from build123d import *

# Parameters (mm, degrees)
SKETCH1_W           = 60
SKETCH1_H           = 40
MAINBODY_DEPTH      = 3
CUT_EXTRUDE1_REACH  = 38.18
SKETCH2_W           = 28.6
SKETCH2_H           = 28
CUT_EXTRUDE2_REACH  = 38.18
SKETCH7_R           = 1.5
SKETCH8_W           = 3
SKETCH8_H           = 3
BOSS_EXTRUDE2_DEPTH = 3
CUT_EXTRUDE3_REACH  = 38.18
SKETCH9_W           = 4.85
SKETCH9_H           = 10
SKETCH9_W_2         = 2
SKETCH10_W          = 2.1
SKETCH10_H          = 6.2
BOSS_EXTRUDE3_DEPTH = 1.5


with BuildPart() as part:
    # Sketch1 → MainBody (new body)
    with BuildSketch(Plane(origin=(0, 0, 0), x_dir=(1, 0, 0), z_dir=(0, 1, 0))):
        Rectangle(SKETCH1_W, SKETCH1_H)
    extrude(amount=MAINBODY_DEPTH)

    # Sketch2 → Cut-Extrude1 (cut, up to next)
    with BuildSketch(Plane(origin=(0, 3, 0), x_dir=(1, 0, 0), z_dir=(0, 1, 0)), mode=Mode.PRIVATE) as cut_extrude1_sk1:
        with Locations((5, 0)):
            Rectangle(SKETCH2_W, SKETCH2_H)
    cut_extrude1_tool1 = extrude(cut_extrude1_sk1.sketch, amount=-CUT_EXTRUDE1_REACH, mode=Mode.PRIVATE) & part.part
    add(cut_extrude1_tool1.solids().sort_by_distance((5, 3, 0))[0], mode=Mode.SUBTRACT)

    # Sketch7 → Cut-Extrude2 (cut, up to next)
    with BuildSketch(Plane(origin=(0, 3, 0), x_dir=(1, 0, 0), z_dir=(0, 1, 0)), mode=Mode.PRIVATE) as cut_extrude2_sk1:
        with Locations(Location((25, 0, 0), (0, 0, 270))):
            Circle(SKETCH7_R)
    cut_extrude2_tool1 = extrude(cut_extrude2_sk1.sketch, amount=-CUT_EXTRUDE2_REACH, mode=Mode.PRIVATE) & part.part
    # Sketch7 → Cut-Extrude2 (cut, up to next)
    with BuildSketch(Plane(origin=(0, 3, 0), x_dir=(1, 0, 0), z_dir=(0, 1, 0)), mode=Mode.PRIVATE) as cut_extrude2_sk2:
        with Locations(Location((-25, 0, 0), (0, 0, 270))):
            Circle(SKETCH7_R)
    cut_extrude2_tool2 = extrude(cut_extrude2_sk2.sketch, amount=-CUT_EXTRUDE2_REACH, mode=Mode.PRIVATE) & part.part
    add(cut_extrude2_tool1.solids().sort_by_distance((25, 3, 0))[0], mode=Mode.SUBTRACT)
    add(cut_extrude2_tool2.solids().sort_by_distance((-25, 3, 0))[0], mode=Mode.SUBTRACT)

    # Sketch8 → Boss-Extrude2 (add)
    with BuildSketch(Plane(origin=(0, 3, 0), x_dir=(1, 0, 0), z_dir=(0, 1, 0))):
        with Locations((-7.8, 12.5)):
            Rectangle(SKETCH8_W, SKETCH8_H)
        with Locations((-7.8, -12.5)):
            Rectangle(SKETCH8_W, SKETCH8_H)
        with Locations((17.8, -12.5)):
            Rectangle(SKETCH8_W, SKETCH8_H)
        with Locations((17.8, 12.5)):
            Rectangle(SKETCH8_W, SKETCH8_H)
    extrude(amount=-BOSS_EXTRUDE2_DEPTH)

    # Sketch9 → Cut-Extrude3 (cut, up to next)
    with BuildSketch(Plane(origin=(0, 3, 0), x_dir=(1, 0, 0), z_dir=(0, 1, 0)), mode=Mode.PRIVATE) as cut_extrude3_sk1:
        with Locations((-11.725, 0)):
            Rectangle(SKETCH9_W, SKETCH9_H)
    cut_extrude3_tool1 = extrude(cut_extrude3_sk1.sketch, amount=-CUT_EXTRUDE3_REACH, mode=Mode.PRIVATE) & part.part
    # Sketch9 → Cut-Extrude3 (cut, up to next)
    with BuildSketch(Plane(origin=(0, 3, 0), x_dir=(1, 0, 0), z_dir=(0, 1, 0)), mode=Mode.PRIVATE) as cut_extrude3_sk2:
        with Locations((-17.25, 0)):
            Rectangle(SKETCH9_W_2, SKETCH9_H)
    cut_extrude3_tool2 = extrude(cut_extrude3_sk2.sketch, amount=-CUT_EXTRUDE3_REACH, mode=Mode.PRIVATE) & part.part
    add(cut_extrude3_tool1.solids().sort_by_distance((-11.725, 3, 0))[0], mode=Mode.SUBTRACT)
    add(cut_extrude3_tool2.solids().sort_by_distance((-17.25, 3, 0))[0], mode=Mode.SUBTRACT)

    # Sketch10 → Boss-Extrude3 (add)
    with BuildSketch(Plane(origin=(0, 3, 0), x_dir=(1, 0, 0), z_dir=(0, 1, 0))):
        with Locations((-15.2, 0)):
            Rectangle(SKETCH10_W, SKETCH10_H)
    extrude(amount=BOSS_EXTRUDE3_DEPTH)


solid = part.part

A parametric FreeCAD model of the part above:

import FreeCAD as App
import Part
import Sketcher

V = App.Vector


def add_polygon(sketch, points):
    """Adds a closed chain of lines whose ends are joined by coincident constraints."""
    first, n = sketch.GeometryCount, len(points)
    for a, b in zip(points, points[1:] + points[:1]):
        sketch.addGeometry(Part.LineSegment(App.Vector(*a, 0), App.Vector(*b, 0)), False)
    for i in range(n):
        sketch.addConstraint(Sketcher.Constraint("Coincident", first + i, 2, first + (i + 1) % n, 1))

doc = App.newDocument("Part")
body = doc.addObject("PartDesign::Body", "Body")

# Sketch on XZ plane
sketch1 = body.newObject("Sketcher::SketchObject", "Sketch")
sketch1.AttachmentSupport = (doc.getObject("XZ_Plane"), [""])
sketch1.MapMode = "FlatFace"
add_polygon(sketch1, [(-30, -20), (-30, 20), (30, 20), (30, -20)])  # lines 0-3
sketch1.addConstraint(Sketcher.Constraint("Vertical", 0))
sketch1.addConstraint(Sketcher.Constraint("Horizontal", 1))
sketch1.addConstraint(Sketcher.Constraint("Vertical", 2))
sketch1.addConstraint(Sketcher.Constraint("Horizontal", 3))
sketch1.addConstraint(Sketcher.Constraint("Symmetric", 0, 2, 2, 2, -1, 1))
sketch1.addConstraint(Sketcher.Constraint("DistanceX", 1, 1, 1, 2, 60.0))
sketch1.addConstraint(Sketcher.Constraint("DistanceY", 0, 1, 0, 2, 40.0))
pad1 = body.newObject("PartDesign::Pad", "Pad")
pad1.Profile = sketch1
pad1.Length = 3
pad1.Reversed = True

# Sketch on XZ plane
sketch2 = body.newObject("Sketcher::SketchObject", "Sketch001")
sketch2.AttachmentSupport = (doc.getObject("XZ_Plane"), [""])
sketch2.MapMode = "FlatFace"
sketch2.AttachmentOffset = App.Placement(V(0, 0, -3), App.Rotation())
add_polygon(sketch2, [(-9, -14), (-9, 14), (19, 14), (19, -14)])  # lines 0-3
sketch2.addConstraint(Sketcher.Constraint("Vertical", 0))
sketch2.addConstraint(Sketcher.Constraint("Horizontal", 1))
sketch2.addConstraint(Sketcher.Constraint("Vertical", 2))
sketch2.addConstraint(Sketcher.Constraint("Horizontal", 3))
sketch2.addConstraint(Sketcher.Constraint("DistanceY", 0, 1, 0, 2, 28.0))
sketch2.addConstraint(Sketcher.Constraint("DistanceX", 1, 1, 1, 2, 28.6))
sketch2.addConstraint(Sketcher.Constraint("DistanceY", -1, 1, 0, 2, 14.0))
sketch2.addConstraint(Sketcher.Constraint("DistanceX", 0, 2, -1, 1, 9.3))
pocket1 = body.newObject("PartDesign::Pocket", "Pocket")
pocket1.Profile = sketch2
pocket1.Type = "UpToFirst"
pocket1.Reversed = True

# Sketch on XZ plane
sketch3 = body.newObject("Sketcher::SketchObject", "Sketch002")
sketch3.AttachmentSupport = (doc.getObject("XZ_Plane"), [""])
sketch3.MapMode = "FlatFace"
sketch3.AttachmentOffset = App.Placement(V(0, 0, -3), App.Rotation())
sketch3.addGeometry(Part.Circle(V(25, 0, 0), V(0, 0, 1), 1.5), False)
sketch3.addConstraint(Sketcher.Constraint("PointOnObject", 0, 3, -1))
sketch3.addConstraint(Sketcher.Constraint("Diameter", 0, 3.0))
sketch3.addConstraint(Sketcher.Constraint("DistanceX", -1, 1, 0, 3, 25.0))
pocket2 = body.newObject("PartDesign::Pocket", "Pocket001")
pocket2.Profile = sketch3
pocket2.Type = "UpToFirst"
pocket2.Reversed = True

# Sketch on XZ plane
sketch4 = body.newObject("Sketcher::SketchObject", "Sketch003")
sketch4.AttachmentSupport = (doc.getObject("XZ_Plane"), [""])
sketch4.MapMode = "FlatFace"
sketch4.AttachmentOffset = App.Placement(V(0, 0, -3), App.Rotation())
sketch4.addGeometry(Part.Circle(V(-25, 0, 0), V(0, 0, 1), 1.5), False)
sketch4.addConstraint(Sketcher.Constraint("PointOnObject", 0, 3, -1))
sketch4.addConstraint(Sketcher.Constraint("Diameter", 0, 3.0))
sketch4.addConstraint(Sketcher.Constraint("DistanceX", 0, 3, -1, 1, 25.0))
pocket3 = body.newObject("PartDesign::Pocket", "Pocket002")
pocket3.Profile = sketch4
pocket3.Type = "UpToFirst"
pocket3.Reversed = True

# Sketch on XZ plane
sketch5 = body.newObject("Sketcher::SketchObject", "Sketch004")
sketch5.AttachmentSupport = (doc.getObject("XZ_Plane"), [""])
sketch5.MapMode = "FlatFace"
sketch5.AttachmentOffset = App.Placement(V(0, 0, -3), App.Rotation())
add_polygon(sketch5, [(-9.3, -14), (-9.3, -11), (-6.3, -11), (-6.3, -14)])  # lines 0-3
add_polygon(sketch5, [(-9.3, 11), (-9.3, 14), (-6.3, 14), (-6.3, 11)])  # lines 4-7
add_polygon(sketch5, [(16.3, 11), (16.3, 14), (19.3, 14), (19.3, 11)])  # lines 8-11
add_polygon(sketch5, [(16.3, -14), (16.3, -11), (19.3, -11), (19.3, -14)])  # lines 12-15
sketch5.addConstraint(Sketcher.Constraint("Vertical", 0))
sketch5.addConstraint(Sketcher.Constraint("Horizontal", 1))
sketch5.addConstraint(Sketcher.Constraint("Vertical", 2))
sketch5.addConstraint(Sketcher.Constraint("Horizontal", 3))
sketch5.addConstraint(Sketcher.Constraint("Vertical", 4))
sketch5.addConstraint(Sketcher.Constraint("Horizontal", 5))
sketch5.addConstraint(Sketcher.Constraint("Vertical", 6))
sketch5.addConstraint(Sketcher.Constraint("Horizontal", 7))
sketch5.addConstraint(Sketcher.Constraint("Vertical", 8))
sketch5.addConstraint(Sketcher.Constraint("Horizontal", 9))
sketch5.addConstraint(Sketcher.Constraint("Vertical", 10))
sketch5.addConstraint(Sketcher.Constraint("Horizontal", 11))
sketch5.addConstraint(Sketcher.Constraint("Vertical", 12))
sketch5.addConstraint(Sketcher.Constraint("Horizontal", 13))
sketch5.addConstraint(Sketcher.Constraint("Vertical", 14))
sketch5.addConstraint(Sketcher.Constraint("Horizontal", 15))
sketch5.addConstraint(Sketcher.Constraint("Symmetric", 3, 2, 4, 2, -1))
sketch5.addConstraint(Sketcher.Constraint("Symmetric", 1, 2, 6, 2, -1))
sketch5.addConstraint(Sketcher.Constraint("Symmetric", 11, 2, 12, 2, -1))
sketch5.addConstraint(Sketcher.Constraint("Symmetric", 9, 2, 14, 2, -1))
sketch5.addConstraint(Sketcher.Constraint("Horizontal", 5, 2, 8, 2))
sketch5.addConstraint(Sketcher.Constraint("Horizontal", 7, 2, 10, 2))
sketch5.addConstraint(Sketcher.Constraint("Equal", 7, 9))
sketch5.addConstraint(Sketcher.Constraint("Equal", 15, 0))
sketch5.addConstraint(Sketcher.Constraint("DistanceX", 1, 1, 1, 2, 3.0))
sketch5.addConstraint(Sketcher.Constraint("DistanceY", 0, 2, -1, 1, 11.0))
sketch5.addConstraint(Sketcher.Constraint("DistanceX", 0, 2, -1, 1, 9.3))
sketch5.addConstraint(Sketcher.Constraint("DistanceX", -1, 1, 8, 2, 16.3))
pad2 = body.newObject("PartDesign::Pad", "Pad001")
pad2.Profile = sketch5
pad2.Length = 3

# Sketch on XZ plane
sketch6 = body.newObject("Sketcher::SketchObject", "Sketch005")
sketch6.AttachmentSupport = (doc.getObject("XZ_Plane"), [""])
sketch6.MapMode = "FlatFace"
sketch6.AttachmentOffset = App.Placement(V(0, 0, -3), App.Rotation())
add_polygon(sketch6, [(-14.2, -5), (-14.2, 5), (-9.3, 5), (-9.3, -5)])  # lines 0-3
sketch6.addConstraint(Sketcher.Constraint("Vertical", 0))
sketch6.addConstraint(Sketcher.Constraint("Horizontal", 1))
sketch6.addConstraint(Sketcher.Constraint("Vertical", 2))
sketch6.addConstraint(Sketcher.Constraint("Horizontal", 3))
sketch6.addConstraint(Sketcher.Constraint("DistanceY", 0, 1, 0, 2, 10.0))
sketch6.addConstraint(Sketcher.Constraint("DistanceY", -1, 1, 0, 2, 5.0))
sketch6.addConstraint(Sketcher.Constraint("DistanceX", 1, 1, 1, 2, 4.85))
sketch6.addConstraint(Sketcher.Constraint("DistanceX", 1, 2, -1, 1, 9.3))
pocket4 = body.newObject("PartDesign::Pocket", "Pocket003")
pocket4.Profile = sketch6
pocket4.Type = "UpToFirst"
pocket4.Reversed = True

# Sketch on XZ plane
sketch7 = body.newObject("Sketcher::SketchObject", "Sketch006")
sketch7.AttachmentSupport = (doc.getObject("XZ_Plane"), [""])
sketch7.MapMode = "FlatFace"
sketch7.AttachmentOffset = App.Placement(V(0, 0, -3), App.Rotation())
add_polygon(sketch7, [(-18.2, -5), (-18.2, 5), (-16.2, 5), (-16.2, -5)])  # lines 0-3
sketch7.addConstraint(Sketcher.Constraint("Vertical", 0))
sketch7.addConstraint(Sketcher.Constraint("Horizontal", 1))
sketch7.addConstraint(Sketcher.Constraint("Vertical", 2))
sketch7.addConstraint(Sketcher.Constraint("Horizontal", 3))
sketch7.addConstraint(Sketcher.Constraint("DistanceX", 1, 1, 1, 2, 2.0))
sketch7.addConstraint(Sketcher.Constraint("DistanceY", 0, 1, 0, 2, 10.0))
sketch7.addConstraint(Sketcher.Constraint("DistanceY", -1, 1, 0, 2, 5.0))
sketch7.addConstraint(Sketcher.Constraint("DistanceX", 0, 2, -1, 1, 18.25))
pocket5 = body.newObject("PartDesign::Pocket", "Pocket004")
pocket5.Profile = sketch7
pocket5.Type = "UpToFirst"
pocket5.Reversed = True

# Sketch on XZ plane
sketch8 = body.newObject("Sketcher::SketchObject", "Sketch007")
sketch8.AttachmentSupport = (doc.getObject("XZ_Plane"), [""])
sketch8.MapMode = "FlatFace"
sketch8.AttachmentOffset = App.Placement(V(0, 0, -3), App.Rotation())
add_polygon(sketch8, [(-16.2, -3.1), (-16.2, 3.1), (-14.2, 3.1), (-14.2, -3.1)])  # lines 0-3
sketch8.addConstraint(Sketcher.Constraint("Vertical", 0))
sketch8.addConstraint(Sketcher.Constraint("Horizontal", 1))
sketch8.addConstraint(Sketcher.Constraint("Vertical", 2))
sketch8.addConstraint(Sketcher.Constraint("Horizontal", 3))
sketch8.addConstraint(Sketcher.Constraint("DistanceX", 1, 1, 1, 2, 2.1))
sketch8.addConstraint(Sketcher.Constraint("DistanceY", 0, 1, 0, 2, 6.2))
sketch8.addConstraint(Sketcher.Constraint("DistanceY", -1, 1, 0, 2, 3.1))
sketch8.addConstraint(Sketcher.Constraint("DistanceX", 0, 2, -1, 1, 16.25))
pad3 = body.newObject("PartDesign::Pad", "Pad002")
pad3.Profile = sketch8
pad3.Length = 1.5
pad3.Reversed = True

doc.recompute()
